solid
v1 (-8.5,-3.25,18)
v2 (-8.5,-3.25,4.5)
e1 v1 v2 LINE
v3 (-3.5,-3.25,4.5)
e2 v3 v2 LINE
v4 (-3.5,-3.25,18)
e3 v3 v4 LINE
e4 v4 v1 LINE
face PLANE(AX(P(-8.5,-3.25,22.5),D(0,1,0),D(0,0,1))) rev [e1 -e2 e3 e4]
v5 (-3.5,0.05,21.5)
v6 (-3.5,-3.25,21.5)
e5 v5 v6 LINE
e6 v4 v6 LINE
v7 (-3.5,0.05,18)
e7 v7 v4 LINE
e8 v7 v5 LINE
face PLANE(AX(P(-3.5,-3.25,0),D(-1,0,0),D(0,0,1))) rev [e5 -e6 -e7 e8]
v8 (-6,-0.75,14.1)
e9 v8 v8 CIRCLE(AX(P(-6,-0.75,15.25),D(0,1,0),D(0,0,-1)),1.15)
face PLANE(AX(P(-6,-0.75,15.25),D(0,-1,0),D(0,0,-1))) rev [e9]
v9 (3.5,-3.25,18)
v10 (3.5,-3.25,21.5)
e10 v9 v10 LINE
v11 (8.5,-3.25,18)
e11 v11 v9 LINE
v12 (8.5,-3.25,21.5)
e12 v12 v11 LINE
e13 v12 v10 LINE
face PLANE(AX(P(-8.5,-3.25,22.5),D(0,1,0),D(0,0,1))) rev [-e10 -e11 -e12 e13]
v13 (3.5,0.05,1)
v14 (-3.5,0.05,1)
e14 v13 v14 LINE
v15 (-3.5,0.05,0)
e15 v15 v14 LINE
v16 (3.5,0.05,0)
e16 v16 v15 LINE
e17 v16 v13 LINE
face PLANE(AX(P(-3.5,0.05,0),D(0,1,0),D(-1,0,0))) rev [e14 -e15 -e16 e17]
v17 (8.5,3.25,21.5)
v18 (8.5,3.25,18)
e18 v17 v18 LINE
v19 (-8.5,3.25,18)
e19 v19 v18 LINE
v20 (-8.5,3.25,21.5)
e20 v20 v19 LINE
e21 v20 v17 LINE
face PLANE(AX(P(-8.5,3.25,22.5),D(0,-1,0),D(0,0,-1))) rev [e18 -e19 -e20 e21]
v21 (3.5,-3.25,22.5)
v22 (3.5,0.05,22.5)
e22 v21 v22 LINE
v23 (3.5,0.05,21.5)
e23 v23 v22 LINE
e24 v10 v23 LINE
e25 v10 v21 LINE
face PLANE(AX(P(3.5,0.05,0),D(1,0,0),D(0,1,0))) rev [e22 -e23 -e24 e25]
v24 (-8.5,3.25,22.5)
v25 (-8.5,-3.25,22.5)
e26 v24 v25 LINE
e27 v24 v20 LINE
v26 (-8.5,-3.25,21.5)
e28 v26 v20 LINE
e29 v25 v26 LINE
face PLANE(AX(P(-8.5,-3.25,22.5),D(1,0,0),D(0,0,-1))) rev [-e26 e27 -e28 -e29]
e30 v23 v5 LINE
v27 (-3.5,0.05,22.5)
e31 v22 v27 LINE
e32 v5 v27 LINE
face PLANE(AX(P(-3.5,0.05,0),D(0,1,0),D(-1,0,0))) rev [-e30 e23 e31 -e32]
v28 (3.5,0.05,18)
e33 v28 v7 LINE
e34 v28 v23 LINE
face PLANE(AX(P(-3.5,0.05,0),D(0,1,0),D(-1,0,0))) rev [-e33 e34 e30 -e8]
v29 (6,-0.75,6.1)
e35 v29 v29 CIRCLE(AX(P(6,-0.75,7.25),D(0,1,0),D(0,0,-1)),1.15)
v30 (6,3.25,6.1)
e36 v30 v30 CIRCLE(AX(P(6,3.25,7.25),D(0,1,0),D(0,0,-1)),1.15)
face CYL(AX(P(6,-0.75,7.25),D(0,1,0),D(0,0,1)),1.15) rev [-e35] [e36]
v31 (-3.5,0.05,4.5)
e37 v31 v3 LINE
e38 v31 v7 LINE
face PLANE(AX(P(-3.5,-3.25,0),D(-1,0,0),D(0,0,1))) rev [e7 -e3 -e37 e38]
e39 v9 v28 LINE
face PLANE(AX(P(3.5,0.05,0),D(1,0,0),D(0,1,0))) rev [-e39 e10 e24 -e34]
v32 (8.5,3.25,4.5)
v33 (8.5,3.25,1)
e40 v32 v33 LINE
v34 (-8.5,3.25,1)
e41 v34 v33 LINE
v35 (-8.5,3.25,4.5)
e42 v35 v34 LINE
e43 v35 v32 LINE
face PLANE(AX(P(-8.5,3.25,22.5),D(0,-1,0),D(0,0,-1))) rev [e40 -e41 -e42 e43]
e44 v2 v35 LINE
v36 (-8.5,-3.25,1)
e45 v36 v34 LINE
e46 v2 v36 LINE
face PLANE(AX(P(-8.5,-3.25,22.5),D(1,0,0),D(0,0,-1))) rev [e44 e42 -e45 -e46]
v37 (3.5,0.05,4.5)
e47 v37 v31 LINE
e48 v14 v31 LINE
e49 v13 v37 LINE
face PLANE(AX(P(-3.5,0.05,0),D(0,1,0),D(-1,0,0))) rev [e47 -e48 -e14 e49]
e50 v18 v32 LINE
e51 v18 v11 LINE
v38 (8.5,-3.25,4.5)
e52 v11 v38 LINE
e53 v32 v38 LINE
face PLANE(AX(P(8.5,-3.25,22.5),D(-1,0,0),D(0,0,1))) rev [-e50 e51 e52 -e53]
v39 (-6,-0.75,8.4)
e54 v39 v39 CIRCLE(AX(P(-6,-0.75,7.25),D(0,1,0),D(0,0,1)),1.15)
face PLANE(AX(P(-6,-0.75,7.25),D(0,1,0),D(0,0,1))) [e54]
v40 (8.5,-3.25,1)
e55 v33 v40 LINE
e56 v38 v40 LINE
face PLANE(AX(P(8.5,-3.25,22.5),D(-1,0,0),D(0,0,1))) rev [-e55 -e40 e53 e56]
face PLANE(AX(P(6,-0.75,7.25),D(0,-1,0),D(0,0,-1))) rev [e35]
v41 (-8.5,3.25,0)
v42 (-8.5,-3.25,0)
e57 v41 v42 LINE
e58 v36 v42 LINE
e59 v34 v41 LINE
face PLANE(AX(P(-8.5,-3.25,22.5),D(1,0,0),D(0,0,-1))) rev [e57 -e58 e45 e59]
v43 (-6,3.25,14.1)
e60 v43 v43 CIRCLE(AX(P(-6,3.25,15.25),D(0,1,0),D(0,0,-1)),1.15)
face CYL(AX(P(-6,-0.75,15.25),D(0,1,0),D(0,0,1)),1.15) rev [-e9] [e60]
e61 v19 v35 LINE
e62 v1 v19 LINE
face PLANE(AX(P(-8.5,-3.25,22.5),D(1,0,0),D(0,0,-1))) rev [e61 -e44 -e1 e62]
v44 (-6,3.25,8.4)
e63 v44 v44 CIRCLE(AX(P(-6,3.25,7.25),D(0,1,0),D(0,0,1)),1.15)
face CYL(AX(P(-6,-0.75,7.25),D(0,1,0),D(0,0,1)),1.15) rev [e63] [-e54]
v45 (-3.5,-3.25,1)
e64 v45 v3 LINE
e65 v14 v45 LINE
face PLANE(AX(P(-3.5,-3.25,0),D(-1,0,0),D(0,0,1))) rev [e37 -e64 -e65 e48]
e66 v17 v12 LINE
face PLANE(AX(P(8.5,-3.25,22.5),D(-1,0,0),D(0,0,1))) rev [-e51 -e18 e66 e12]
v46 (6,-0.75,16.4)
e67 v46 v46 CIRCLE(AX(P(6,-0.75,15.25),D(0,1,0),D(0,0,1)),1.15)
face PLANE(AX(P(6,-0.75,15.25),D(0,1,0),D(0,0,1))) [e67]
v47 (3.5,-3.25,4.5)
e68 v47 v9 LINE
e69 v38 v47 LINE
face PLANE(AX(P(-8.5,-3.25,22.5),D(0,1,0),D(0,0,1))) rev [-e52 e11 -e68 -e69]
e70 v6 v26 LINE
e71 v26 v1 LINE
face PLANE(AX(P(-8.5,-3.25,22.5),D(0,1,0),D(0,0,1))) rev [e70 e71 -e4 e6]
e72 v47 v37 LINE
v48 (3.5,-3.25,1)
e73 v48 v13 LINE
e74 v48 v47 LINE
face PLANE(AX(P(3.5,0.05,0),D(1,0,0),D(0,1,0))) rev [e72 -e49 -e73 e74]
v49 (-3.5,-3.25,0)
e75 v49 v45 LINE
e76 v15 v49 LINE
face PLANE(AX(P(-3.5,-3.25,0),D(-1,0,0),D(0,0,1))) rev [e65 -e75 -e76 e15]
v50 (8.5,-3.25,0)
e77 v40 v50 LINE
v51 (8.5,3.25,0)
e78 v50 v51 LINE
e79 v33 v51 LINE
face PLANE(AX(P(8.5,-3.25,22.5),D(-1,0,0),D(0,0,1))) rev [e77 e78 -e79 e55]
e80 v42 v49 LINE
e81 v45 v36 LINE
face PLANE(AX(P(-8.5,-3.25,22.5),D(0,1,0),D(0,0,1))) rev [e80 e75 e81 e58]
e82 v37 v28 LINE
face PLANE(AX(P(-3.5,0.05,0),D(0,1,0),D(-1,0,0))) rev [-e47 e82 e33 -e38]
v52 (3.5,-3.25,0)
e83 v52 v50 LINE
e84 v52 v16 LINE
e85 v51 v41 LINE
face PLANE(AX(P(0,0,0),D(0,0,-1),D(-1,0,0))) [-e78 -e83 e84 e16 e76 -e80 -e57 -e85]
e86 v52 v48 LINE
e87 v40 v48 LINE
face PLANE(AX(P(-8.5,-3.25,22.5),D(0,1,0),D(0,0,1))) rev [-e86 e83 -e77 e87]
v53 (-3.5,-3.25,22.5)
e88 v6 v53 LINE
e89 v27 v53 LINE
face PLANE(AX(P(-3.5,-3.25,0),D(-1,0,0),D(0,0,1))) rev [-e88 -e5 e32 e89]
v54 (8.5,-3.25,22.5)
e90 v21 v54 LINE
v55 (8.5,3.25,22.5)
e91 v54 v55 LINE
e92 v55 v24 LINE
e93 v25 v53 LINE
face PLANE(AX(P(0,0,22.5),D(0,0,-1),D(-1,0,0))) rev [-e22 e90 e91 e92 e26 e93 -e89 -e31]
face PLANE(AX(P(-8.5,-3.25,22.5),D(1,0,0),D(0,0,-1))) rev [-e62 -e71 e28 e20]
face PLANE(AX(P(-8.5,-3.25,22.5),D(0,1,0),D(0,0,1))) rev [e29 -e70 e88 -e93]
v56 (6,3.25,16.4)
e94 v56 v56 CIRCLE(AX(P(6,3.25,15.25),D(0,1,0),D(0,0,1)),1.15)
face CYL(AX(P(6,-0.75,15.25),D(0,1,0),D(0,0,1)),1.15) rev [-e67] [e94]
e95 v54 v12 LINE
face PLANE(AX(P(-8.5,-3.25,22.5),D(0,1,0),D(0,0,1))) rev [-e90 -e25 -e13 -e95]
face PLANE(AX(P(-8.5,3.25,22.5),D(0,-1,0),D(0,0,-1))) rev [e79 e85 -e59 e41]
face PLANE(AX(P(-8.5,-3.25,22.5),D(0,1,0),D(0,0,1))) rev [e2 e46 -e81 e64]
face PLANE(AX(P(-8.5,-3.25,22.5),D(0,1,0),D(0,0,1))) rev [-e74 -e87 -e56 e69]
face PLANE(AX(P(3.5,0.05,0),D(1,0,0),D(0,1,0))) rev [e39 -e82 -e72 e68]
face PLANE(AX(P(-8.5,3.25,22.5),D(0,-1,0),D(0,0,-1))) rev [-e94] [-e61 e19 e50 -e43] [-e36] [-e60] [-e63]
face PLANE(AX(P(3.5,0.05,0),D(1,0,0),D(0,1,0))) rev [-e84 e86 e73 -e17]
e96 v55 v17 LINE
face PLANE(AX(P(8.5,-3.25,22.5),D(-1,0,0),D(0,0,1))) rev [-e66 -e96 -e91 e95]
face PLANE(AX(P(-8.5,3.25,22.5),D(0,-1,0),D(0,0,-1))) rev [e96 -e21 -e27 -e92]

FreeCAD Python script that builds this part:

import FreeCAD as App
import Part
import Sketcher

V = App.Vector


def add_polygon(sketch, points):
    """Adds a closed chain of lines whose ends are joined by coincident constraints."""
    first, n = sketch.GeometryCount, len(points)
    for a, b in zip(points, points[1:] + points[:1]):
        sketch.addGeometry(Part.LineSegment(App.Vector(*a, 0), App.Vector(*b, 0)), False)
    for i in range(n):
        sketch.addConstraint(Sketcher.Constraint("Coincident", first + i, 2, first + (i + 1) % n, 1))

doc = App.newDocument("Part")
body = doc.addObject("PartDesign::Body", "Body")

sketch1 = body.newObject("Sketcher::SketchObject", "Sketch")
sketch1.AttachmentSupport = (doc.getObject("XY_Plane"), [""])
sketch1.MapMode = "FlatFace"
add_polygon(sketch1, [(-8.5, 3.25), (-8.5, -3.25), (8.5, -3.25), (8.5, 3.25)])
sketch1.addConstraint([
    Sketcher.Constraint("Vertical", 0),
    Sketcher.Constraint("Horizontal", 1),
    Sketcher.Constraint("Vertical", 2),
    Sketcher.Constraint("Horizontal", 3),
    Sketcher.Constraint("Symmetric", 0, 2, 2, 2, -1, 1),
    Sketcher.Constraint("DistanceX", 1, 1, 1, 2, 17.0),
    Sketcher.Constraint("DistanceY", 0, 2, 0, 1, 6.5),
])
pad1 = body.newObject("PartDesign::Pad", "Pad")
pad1.Profile = sketch1
pad1.Length = 22.5

sketch2 = body.newObject("Sketcher::SketchObject", "Sketch001")
sketch2.AttachmentSupport = (doc.getObject("XY_Plane"), [""])
sketch2.MapMode = "FlatFace"
sketch2.AttachmentOffset = App.Placement(V(0, 0, 22.5), App.Rotation())
add_polygon(sketch2, [(-3.5, 0.05), (-3.5, -3.25), (3.5, -3.25), (3.5, 0.05)])
sketch2.addConstraint([
    Sketcher.Constraint("Vertical", 0),
    Sketcher.Constraint("Horizontal", 1),
    Sketcher.Constraint("Vertical", 2),
    Sketcher.Constraint("Horizontal", 3),
    Sketcher.Constraint("DistanceX", 1, 1, 1, 2, 7.0),
    Sketcher.Constraint("DistanceY", 0, 2, 0, 1, 3.3),
    Sketcher.Constraint("DistanceX", 0, 2, -1, 1, 3.5),
    Sketcher.Constraint("DistanceY", 0, 2, -1, 1, 3.25),
])
pocket1 = body.newObject("PartDesign::Pocket", "Pocket")
pocket1.Profile = sketch2
pocket1.Type = "ThroughAll"

sketch3 = body.newObject("Sketcher::SketchObject", "Sketch002")
sketch3.AttachmentSupport = (doc.getObject("XZ_Plane"), [""])
sketch3.MapMode = "FlatFace"
sketch3.AttachmentOffset = App.Placement(V(0, 0, -3.25), App.Rotation())
sketch3.addGeometry([
    Part.Circle(V(-6, 7.25, 0), V(0, 0, 1), 1.15),
    Part.Circle(V(-6, 15.25, 0), V(0, 0, 1), 1.15),
    Part.Circle(V(6, 15.25, 0), V(0, 0, 1), 1.15),
    Part.Circle(V(6, 7.25, 0), V(0, 0, 1), 1.15),
], False)
sketch3.addConstraint([
    Sketcher.Constraint("Equal", 0, 1),
    Sketcher.Constraint("Equal", 1, 2),
    Sketcher.Constraint("Equal", 2, 3),
    Sketcher.Constraint("Symmetric", 1, 3, 2, 3, -2),
    Sketcher.Constraint("Symmetric", 0, 3, 3, 3, -2),
    Sketcher.Constraint("Vertical", 0, 3, 1, 3),
    Sketcher.Constraint("Diameter", 0, 2.3),
    Sketcher.Constraint("DistanceX", 0, 3, -1, 1, 6.0),
    Sketcher.Constraint("DistanceY", 0, 3, 1, 3, 8.0),
    Sketcher.Constraint("DistanceY", -1, 1, 0, 3, 7.25),
])
pocket2 = body.newObject("PartDesign::Pocket", "Pocket001")
pocket2.Profile = sketch3
pocket2.Length = 4
pocket2.Reversed = True

doc.recompute()
